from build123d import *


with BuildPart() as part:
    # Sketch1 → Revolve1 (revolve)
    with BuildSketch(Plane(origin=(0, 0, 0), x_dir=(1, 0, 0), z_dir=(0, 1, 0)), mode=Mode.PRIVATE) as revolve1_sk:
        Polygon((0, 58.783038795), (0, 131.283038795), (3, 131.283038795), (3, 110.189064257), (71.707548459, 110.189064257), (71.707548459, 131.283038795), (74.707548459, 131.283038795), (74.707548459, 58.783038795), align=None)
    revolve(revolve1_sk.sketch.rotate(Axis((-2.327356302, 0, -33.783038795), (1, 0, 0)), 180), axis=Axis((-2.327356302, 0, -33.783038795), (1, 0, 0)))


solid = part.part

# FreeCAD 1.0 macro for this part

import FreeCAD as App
import Part
import Sketcher

doc = App.newDocument("Part")
body = doc.addObject("PartDesign::Body", "Body")

# Sketch on XZ plane
sketch1 = doc.addObject("Sketcher::SketchObject", "Sketch")
body.addObject(sketch1)
sketch1.AttachmentSupport = (doc.XZ_Plane, [""])
sketch1.MapMode = "FlatFace"
sketch1.addGeometry(Part.LineSegment(App.Vector(0, -131.283039, 0), App.Vector(0, -58.783039, 0)), False)
sketch1.addGeometry(Part.LineSegment(App.Vector(0, -58.783039, 0), App.Vector(74.707548, -58.783039, 0)), False)
sketch1.addGeometry(Part.LineSegment(App.Vector(74.707548, -58.783039, 0), App.Vector(74.707548, -131.283039, 0)), False)
sketch1.addGeometry(Part.LineSegment(App.Vector(74.707548, -131.283039, 0), App.Vector(71.707548, -131.283039, 0)), False)
sketch1.addGeometry(Part.LineSegment(App.Vector(71.707548, -131.283039, 0), App.Vector(71.707548, -110.189064, 0)), False)
sketch1.addGeometry(Part.LineSegment(App.Vector(71.707548, -110.189064, 0), App.Vector(3, -110.189064, 0)), False)
sketch1.addGeometry(Part.LineSegment(App.Vector(3, -110.189064, 0), App.Vector(3, -131.283039, 0)), False)
sketch1.addGeometry(Part.LineSegment(App.Vector(3, -131.283039, 0), App.Vector(0, -131.283039, 0)), False)
sketch1.addGeometry(Part.LineSegment(App.Vector(0, -33.783039, 0), App.Vector(74.707548, -33.783039, 0)), True)  # axis
sketch1.addConstraint(Sketcher.Constraint("Coincident", 0, 2, 1, 1))
sketch1.addConstraint(Sketcher.Constraint("Coincident", 1, 2, 2, 1))
sketch1.addConstraint(Sketcher.Constraint("Coincident", 2, 2, 3, 1))
sketch1.addConstraint(Sketcher.Constraint("Coincident", 3, 2, 4, 1))
sketch1.addConstraint(Sketcher.Constraint("Coincident", 4, 2, 5, 1))
sketch1.addConstraint(Sketcher.Constraint("Coincident", 5, 2, 6, 1))
sketch1.addConstraint(Sketcher.Constraint("Coincident", 6, 2, 7, 1))
sketch1.addConstraint(Sketcher.Constraint("Coincident", 7, 2, 0, 1))
sketch1.addConstraint(Sketcher.Constraint("Vertical", 0))
sketch1.addConstraint(Sketcher.Constraint("Horizontal", 1))
sketch1.addConstraint(Sketcher.Constraint("Vertical", 2))
sketch1.addConstraint(Sketcher.Constraint("Horizontal", 3))
sketch1.addConstraint(Sketcher.Constraint("Vertical", 4))
sketch1.addConstraint(Sketcher.Constraint("Horizontal", 5))
sketch1.addConstraint(Sketcher.Constraint("Vertical", 6))
sketch1.addConstraint(Sketcher.Constraint("Horizontal", 7))
sketch1.addConstraint(Sketcher.Constraint("Horizontal", 8))
sketch1.addConstraint(Sketcher.Constraint("PointOnObject", 0, 2, -2))
sketch1.addConstraint(Sketcher.Constraint("PointOnObject", 8, 1, -2))
sketch1.addConstraint(Sketcher.Constraint("Horizontal", 3, 2, 6, 2))
sketch1.addConstraint(Sketcher.Constraint("Vertical", 2, 2, 8, 2))
sketch1.addConstraint(Sketcher.Constraint("Equal", 3, 7))
sketch1.addConstraint(Sketcher.Constraint("DistanceX", 3, 2, 3, 1, 3.0))
sketch1.addConstraint(Sketcher.Constraint("DistanceY", 0, 1, 0, 2, 72.5))
sketch1.addConstraint(Sketcher.Constraint("DistanceY", 0, 2, 8, 1, 25.0))
sketch1.addConstraint(Sketcher.Constraint("DistanceX", 1, 1, 1, 2, 74.707548))
sketch1.addConstraint(Sketcher.Constraint("DistanceY", 4, 1, 4, 2, 21.093975))
sketch1.addConstraint(Sketcher.Constraint("DistanceY", 0, 2, -1, 1, 58.783039))
revolution = doc.addObject("PartDesign::Revolution", "Revolution")
body.addObject(revolution)
revolution.Profile = sketch1
revolution.ReferenceAxis = (sketch1, ["Axis0"])
revolution.Angle = 360

doc.recompute()
